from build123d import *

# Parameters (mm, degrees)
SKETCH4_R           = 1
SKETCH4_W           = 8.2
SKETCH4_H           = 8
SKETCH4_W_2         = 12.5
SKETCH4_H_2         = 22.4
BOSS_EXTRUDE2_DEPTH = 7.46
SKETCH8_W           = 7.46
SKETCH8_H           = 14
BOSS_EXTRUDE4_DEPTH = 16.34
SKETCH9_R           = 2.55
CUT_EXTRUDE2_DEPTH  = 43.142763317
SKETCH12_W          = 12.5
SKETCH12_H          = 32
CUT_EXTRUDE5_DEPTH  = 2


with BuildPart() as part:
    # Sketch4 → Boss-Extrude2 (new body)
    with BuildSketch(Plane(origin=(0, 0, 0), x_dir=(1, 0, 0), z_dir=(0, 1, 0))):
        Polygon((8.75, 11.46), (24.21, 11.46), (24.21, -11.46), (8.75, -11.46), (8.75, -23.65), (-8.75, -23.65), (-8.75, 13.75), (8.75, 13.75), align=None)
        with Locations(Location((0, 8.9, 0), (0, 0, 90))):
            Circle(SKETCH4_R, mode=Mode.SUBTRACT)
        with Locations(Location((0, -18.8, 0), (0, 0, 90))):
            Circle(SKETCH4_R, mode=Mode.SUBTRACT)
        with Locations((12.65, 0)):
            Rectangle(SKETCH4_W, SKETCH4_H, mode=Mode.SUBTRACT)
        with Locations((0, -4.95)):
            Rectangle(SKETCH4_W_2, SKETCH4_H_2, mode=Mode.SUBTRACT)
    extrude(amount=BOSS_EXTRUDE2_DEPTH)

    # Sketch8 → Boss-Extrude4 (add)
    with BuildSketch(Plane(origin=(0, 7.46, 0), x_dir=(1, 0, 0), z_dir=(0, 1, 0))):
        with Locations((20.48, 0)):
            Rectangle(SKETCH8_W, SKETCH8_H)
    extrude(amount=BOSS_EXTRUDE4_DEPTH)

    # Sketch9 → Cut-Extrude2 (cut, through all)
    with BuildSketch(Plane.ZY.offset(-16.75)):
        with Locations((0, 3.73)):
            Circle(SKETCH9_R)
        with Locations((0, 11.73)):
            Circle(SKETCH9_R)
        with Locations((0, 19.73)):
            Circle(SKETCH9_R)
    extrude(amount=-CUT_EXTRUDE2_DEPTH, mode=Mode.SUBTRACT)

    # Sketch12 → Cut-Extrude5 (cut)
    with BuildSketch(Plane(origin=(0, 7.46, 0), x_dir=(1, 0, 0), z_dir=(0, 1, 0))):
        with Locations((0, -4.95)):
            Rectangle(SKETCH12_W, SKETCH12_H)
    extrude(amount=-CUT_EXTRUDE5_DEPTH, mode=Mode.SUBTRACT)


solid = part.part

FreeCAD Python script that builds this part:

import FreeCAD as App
import Part
import Sketcher
from FreeCAD import Vector
Q = App.Units.Quantity


def add_polygon(sketch, points):
    """Adds a closed chain of lines whose ends are joined by coincident constraints."""
    first, n = sketch.GeometryCount, len(points)
    for a, b in zip(points, points[1:] + points[:1]):
        sketch.addGeometry(Part.LineSegment(App.Vector(*a, 0), App.Vector(*b, 0)), False)
    for i in range(n):
        sketch.addConstraint(Sketcher.Constraint("Coincident", first + i, 2, first + (i + 1) % n, 1))

doc = App.newDocument("Part")
body = doc.addObject("PartDesign::Body", "Body")

sketch1 = doc.addObject("Sketcher::SketchObject", "Sketch")
body.addObject(sketch1)
sketch1.AttachmentSupport = (doc.XZ_Plane, [""])
sketch1.MapMode = "FlatFace"
add_polygon(sketch1, [(24.2, -11.5), (8.8, -11.5), (8.8, -13.8), (-8.8, -13.8), (-8.8, 23.6), (8.8, 23.6), (8.8, 11.5), (24.2, 11.5)])
sketch1.addGeometry(Part.Circle(Vector(0, 18.8, 0), Vector(0, 0, 1), 1), False)
add_polygon(sketch1, [(8.6, 4), (8.6, -4), (16.8, -4), (16.8, 4)])
add_polygon(sketch1, [(-6.2, 16.1), (-6.2, -6.2), (6.2, -6.2), (6.2, 16.1)])
sketch1.addGeometry(Part.Circle(Vector(0, -8.9, 0), Vector(0, 0, 1), 1), False)
sketch1.addConstraint([
    Sketcher.Constraint("Horizontal", 0),
    Sketcher.Constraint("Vertical", 1),
    Sketcher.Constraint("Horizontal", 2),
    Sketcher.Constraint("Vertical", 3),
    Sketcher.Constraint("Horizontal", 4),
    Sketcher.Constraint("Vertical", 5),
    Sketcher.Constraint("Horizontal", 6),
    Sketcher.Constraint("Vertical", 7),
    Sketcher.Constraint("Vertical", 9),
    Sketcher.Constraint("Horizontal", 10),
    Sketcher.Constraint("Vertical", 11),
    Sketcher.Constraint("Horizontal", 12),
    Sketcher.Constraint("Vertical", 13),
    Sketcher.Constraint("Horizontal", 14),
    Sketcher.Constraint("Vertical", 15),
    Sketcher.Constraint("Horizontal", 16),
    Sketcher.Constraint("Equal", 8, 17),
    Sketcher.Constraint("Symmetric", 0, 2, 5, 2, -1),
    Sketcher.Constraint("PointOnObject", 8, 3, -2),
    Sketcher.Constraint("PointOnObject", 17, 3, -2),
    Sketcher.Constraint("Diameter", 8, Q("2 mm")),
    Sketcher.Constraint("DistanceY", 9, 2, 9, 1, Q("8 mm")),
    Sketcher.Constraint("DistanceX", 2, 2, 2, 1, Q("17.5 mm")),
    Sketcher.Constraint("DistanceX", 10, 1, 10, 2, Q("8.2 mm")),
    Sketcher.Constraint("DistanceX", 14, 1, 14, 2, Q("12.5 mm")),
    Sketcher.Constraint("DistanceY", 3, 1, 3, 2, Q("37.4 mm")),
    Sketcher.Constraint("DistanceY", 13, 2, 13, 1, Q("22.4 mm")),
    Sketcher.Constraint("DistanceY", 9, 2, -1, 1, Q("4 mm")),
    Sketcher.Constraint("DistanceX", 0, 2, 10, 2, Q("8 mm")),
    Sketcher.Constraint("DistanceX", 13, 2, 0, 2, Q("15 mm")),
    Sketcher.Constraint("DistanceX", 0, 2, 0, 1, Q("15.46 mm")),
    Sketcher.Constraint("DistanceY", 1, 2, 1, 1, Q("2.29 mm")),
    Sketcher.Constraint("DistanceY", 5, 2, 5, 1, Q("12.19 mm")),
    Sketcher.Constraint("DistanceY", -1, 1, 8, 3, Q("18.8 mm")),
    Sketcher.Constraint("DistanceY", 17, 3, -1, 1, Q("8.9 mm")),
    Sketcher.Constraint("DistanceY", 2, 2, 13, 2, Q("7.5 mm")),
    Sketcher.Constraint("DistanceX", -1, 1, 0, 2, Q("8.75 mm")),
])
pad1 = doc.addObject("PartDesign::Pad", "Pad")
body.addObject(pad1)
pad1.Profile = sketch1
pad1.Length = 7.46
pad1.Reversed = True

sketch2 = doc.addObject("Sketcher::SketchObject", "Sketch001")
body.addObject(sketch2)
sketch2.AttachmentSupport = (doc.XZ_Plane, [""])
sketch2.MapMode = "FlatFace"
sketch2.AttachmentOffset = App.Placement(Vector(0, 0, -7.46), App.Rotation())
add_polygon(sketch2, [(17, -7), (17, 7), (24, 7), (24, -7)])
sketch2.addConstraint([
    Sketcher.Constraint("Vertical", 0),
    Sketcher.Constraint("Horizontal", 1),
    Sketcher.Constraint("Vertical", 2),
    Sketcher.Constraint("Horizontal", 3),
    Sketcher.Constraint("DistanceY", 0, 1, 0, 2, Q("14 mm")),
    Sketcher.Constraint("DistanceY", -1, 1, 0, 2, Q("7 mm")),
    Sketcher.Constraint("DistanceX", 1, 1, 1, 2, Q("7.46 mm")),
    Sketcher.Constraint("DistanceX", -1, 1, 0, 2, Q("16.75 mm")),
])
pad2 = doc.addObject("PartDesign::Pad", "Pad001")
body.addObject(pad2)
pad2.Profile = sketch2
pad2.Length = 16.34
pad2.Reversed = True

sketch3 = doc.addObject("Sketcher::SketchObject", "Sketch002")
body.addObject(sketch3)
sketch3.AttachmentSupport = (doc.YZ_Plane, [""])
sketch3.MapMode = "FlatFace"
sketch3.AttachmentOffset = App.Placement(Vector(0, 0, 16.75), App.Rotation())
sketch3.addGeometry([
    Part.Circle(Vector(3.7, 0, 0), Vector(0, 0, 1), 2.5),
    Part.Circle(Vector(11.7, 0, 0), Vector(0, 0, 1), 2.5),
    Part.Circle(Vector(19.7, 0, 0), Vector(0, 0, 1), 2.5),
], False)
sketch3.addConstraint([
    Sketcher.Constraint("Equal", 0, 1),
    Sketcher.Constraint("Equal", 1, 2),
    Sketcher.Constraint("PointOnObject", 0, 3, -1),
    Sketcher.Constraint("PointOnObject", 1, 3, -1),
    Sketcher.Constraint("PointOnObject", 2, 3, -1),
    Sketcher.Constraint("Diameter", 0, Q("5.1 mm")),
    Sketcher.Constraint("DistanceX", 0, 3, 1, 3, Q("8 mm")),
    Sketcher.Constraint("DistanceX", 1, 3, 2, 3, Q("8 mm")),
    Sketcher.Constraint("DistanceX", -1, 1, 0, 3, Q("3.73 mm")),
])
pocket1 = doc.addObject("PartDesign::Pocket", "Pocket")
body.addObject(pocket1)
pocket1.Profile = sketch3
pocket1.Type = "ThroughAll"
pocket1.Reversed = True

sketch4 = doc.addObject("Sketcher::SketchObject", "Sketch003")
body.addObject(sketch4)
sketch4.AttachmentSupport = (doc.XZ_Plane, [""])
sketch4.MapMode = "FlatFace"
sketch4.AttachmentOffset = App.Placement(Vector(0, 0, -7.46), App.Rotation())
add_polygon(sketch4, [(-6, -11), (-6, 21), (6, 21), (6, -11)])
sketch4.addConstraint([
    Sketcher.Constraint("Vertical", 0),
    Sketcher.Constraint("Horizontal", 1),
    Sketcher.Constraint("Vertical", 2),
    Sketcher.Constraint("Horizontal", 3),
    Sketcher.Constraint("DistanceY", 0, 1, 0, 2, Q("32 mm")),
    Sketcher.Constraint("DistanceX", 1, 1, 1, 2, Q("12.5 mm")),
    Sketcher.Constraint("DistanceX", 0, 2, -1, 1, Q("6.25 mm")),
    Sketcher.Constraint("DistanceY", -1, 1, 0, 2, Q("20.95 mm")),
])
pocket2 = doc.addObject("PartDesign::Pocket", "Pocket001")
body.addObject(pocket2)
pocket2.Profile = sketch4
pocket2.Length = 2
pocket2.Reversed = True

doc.recompute()
